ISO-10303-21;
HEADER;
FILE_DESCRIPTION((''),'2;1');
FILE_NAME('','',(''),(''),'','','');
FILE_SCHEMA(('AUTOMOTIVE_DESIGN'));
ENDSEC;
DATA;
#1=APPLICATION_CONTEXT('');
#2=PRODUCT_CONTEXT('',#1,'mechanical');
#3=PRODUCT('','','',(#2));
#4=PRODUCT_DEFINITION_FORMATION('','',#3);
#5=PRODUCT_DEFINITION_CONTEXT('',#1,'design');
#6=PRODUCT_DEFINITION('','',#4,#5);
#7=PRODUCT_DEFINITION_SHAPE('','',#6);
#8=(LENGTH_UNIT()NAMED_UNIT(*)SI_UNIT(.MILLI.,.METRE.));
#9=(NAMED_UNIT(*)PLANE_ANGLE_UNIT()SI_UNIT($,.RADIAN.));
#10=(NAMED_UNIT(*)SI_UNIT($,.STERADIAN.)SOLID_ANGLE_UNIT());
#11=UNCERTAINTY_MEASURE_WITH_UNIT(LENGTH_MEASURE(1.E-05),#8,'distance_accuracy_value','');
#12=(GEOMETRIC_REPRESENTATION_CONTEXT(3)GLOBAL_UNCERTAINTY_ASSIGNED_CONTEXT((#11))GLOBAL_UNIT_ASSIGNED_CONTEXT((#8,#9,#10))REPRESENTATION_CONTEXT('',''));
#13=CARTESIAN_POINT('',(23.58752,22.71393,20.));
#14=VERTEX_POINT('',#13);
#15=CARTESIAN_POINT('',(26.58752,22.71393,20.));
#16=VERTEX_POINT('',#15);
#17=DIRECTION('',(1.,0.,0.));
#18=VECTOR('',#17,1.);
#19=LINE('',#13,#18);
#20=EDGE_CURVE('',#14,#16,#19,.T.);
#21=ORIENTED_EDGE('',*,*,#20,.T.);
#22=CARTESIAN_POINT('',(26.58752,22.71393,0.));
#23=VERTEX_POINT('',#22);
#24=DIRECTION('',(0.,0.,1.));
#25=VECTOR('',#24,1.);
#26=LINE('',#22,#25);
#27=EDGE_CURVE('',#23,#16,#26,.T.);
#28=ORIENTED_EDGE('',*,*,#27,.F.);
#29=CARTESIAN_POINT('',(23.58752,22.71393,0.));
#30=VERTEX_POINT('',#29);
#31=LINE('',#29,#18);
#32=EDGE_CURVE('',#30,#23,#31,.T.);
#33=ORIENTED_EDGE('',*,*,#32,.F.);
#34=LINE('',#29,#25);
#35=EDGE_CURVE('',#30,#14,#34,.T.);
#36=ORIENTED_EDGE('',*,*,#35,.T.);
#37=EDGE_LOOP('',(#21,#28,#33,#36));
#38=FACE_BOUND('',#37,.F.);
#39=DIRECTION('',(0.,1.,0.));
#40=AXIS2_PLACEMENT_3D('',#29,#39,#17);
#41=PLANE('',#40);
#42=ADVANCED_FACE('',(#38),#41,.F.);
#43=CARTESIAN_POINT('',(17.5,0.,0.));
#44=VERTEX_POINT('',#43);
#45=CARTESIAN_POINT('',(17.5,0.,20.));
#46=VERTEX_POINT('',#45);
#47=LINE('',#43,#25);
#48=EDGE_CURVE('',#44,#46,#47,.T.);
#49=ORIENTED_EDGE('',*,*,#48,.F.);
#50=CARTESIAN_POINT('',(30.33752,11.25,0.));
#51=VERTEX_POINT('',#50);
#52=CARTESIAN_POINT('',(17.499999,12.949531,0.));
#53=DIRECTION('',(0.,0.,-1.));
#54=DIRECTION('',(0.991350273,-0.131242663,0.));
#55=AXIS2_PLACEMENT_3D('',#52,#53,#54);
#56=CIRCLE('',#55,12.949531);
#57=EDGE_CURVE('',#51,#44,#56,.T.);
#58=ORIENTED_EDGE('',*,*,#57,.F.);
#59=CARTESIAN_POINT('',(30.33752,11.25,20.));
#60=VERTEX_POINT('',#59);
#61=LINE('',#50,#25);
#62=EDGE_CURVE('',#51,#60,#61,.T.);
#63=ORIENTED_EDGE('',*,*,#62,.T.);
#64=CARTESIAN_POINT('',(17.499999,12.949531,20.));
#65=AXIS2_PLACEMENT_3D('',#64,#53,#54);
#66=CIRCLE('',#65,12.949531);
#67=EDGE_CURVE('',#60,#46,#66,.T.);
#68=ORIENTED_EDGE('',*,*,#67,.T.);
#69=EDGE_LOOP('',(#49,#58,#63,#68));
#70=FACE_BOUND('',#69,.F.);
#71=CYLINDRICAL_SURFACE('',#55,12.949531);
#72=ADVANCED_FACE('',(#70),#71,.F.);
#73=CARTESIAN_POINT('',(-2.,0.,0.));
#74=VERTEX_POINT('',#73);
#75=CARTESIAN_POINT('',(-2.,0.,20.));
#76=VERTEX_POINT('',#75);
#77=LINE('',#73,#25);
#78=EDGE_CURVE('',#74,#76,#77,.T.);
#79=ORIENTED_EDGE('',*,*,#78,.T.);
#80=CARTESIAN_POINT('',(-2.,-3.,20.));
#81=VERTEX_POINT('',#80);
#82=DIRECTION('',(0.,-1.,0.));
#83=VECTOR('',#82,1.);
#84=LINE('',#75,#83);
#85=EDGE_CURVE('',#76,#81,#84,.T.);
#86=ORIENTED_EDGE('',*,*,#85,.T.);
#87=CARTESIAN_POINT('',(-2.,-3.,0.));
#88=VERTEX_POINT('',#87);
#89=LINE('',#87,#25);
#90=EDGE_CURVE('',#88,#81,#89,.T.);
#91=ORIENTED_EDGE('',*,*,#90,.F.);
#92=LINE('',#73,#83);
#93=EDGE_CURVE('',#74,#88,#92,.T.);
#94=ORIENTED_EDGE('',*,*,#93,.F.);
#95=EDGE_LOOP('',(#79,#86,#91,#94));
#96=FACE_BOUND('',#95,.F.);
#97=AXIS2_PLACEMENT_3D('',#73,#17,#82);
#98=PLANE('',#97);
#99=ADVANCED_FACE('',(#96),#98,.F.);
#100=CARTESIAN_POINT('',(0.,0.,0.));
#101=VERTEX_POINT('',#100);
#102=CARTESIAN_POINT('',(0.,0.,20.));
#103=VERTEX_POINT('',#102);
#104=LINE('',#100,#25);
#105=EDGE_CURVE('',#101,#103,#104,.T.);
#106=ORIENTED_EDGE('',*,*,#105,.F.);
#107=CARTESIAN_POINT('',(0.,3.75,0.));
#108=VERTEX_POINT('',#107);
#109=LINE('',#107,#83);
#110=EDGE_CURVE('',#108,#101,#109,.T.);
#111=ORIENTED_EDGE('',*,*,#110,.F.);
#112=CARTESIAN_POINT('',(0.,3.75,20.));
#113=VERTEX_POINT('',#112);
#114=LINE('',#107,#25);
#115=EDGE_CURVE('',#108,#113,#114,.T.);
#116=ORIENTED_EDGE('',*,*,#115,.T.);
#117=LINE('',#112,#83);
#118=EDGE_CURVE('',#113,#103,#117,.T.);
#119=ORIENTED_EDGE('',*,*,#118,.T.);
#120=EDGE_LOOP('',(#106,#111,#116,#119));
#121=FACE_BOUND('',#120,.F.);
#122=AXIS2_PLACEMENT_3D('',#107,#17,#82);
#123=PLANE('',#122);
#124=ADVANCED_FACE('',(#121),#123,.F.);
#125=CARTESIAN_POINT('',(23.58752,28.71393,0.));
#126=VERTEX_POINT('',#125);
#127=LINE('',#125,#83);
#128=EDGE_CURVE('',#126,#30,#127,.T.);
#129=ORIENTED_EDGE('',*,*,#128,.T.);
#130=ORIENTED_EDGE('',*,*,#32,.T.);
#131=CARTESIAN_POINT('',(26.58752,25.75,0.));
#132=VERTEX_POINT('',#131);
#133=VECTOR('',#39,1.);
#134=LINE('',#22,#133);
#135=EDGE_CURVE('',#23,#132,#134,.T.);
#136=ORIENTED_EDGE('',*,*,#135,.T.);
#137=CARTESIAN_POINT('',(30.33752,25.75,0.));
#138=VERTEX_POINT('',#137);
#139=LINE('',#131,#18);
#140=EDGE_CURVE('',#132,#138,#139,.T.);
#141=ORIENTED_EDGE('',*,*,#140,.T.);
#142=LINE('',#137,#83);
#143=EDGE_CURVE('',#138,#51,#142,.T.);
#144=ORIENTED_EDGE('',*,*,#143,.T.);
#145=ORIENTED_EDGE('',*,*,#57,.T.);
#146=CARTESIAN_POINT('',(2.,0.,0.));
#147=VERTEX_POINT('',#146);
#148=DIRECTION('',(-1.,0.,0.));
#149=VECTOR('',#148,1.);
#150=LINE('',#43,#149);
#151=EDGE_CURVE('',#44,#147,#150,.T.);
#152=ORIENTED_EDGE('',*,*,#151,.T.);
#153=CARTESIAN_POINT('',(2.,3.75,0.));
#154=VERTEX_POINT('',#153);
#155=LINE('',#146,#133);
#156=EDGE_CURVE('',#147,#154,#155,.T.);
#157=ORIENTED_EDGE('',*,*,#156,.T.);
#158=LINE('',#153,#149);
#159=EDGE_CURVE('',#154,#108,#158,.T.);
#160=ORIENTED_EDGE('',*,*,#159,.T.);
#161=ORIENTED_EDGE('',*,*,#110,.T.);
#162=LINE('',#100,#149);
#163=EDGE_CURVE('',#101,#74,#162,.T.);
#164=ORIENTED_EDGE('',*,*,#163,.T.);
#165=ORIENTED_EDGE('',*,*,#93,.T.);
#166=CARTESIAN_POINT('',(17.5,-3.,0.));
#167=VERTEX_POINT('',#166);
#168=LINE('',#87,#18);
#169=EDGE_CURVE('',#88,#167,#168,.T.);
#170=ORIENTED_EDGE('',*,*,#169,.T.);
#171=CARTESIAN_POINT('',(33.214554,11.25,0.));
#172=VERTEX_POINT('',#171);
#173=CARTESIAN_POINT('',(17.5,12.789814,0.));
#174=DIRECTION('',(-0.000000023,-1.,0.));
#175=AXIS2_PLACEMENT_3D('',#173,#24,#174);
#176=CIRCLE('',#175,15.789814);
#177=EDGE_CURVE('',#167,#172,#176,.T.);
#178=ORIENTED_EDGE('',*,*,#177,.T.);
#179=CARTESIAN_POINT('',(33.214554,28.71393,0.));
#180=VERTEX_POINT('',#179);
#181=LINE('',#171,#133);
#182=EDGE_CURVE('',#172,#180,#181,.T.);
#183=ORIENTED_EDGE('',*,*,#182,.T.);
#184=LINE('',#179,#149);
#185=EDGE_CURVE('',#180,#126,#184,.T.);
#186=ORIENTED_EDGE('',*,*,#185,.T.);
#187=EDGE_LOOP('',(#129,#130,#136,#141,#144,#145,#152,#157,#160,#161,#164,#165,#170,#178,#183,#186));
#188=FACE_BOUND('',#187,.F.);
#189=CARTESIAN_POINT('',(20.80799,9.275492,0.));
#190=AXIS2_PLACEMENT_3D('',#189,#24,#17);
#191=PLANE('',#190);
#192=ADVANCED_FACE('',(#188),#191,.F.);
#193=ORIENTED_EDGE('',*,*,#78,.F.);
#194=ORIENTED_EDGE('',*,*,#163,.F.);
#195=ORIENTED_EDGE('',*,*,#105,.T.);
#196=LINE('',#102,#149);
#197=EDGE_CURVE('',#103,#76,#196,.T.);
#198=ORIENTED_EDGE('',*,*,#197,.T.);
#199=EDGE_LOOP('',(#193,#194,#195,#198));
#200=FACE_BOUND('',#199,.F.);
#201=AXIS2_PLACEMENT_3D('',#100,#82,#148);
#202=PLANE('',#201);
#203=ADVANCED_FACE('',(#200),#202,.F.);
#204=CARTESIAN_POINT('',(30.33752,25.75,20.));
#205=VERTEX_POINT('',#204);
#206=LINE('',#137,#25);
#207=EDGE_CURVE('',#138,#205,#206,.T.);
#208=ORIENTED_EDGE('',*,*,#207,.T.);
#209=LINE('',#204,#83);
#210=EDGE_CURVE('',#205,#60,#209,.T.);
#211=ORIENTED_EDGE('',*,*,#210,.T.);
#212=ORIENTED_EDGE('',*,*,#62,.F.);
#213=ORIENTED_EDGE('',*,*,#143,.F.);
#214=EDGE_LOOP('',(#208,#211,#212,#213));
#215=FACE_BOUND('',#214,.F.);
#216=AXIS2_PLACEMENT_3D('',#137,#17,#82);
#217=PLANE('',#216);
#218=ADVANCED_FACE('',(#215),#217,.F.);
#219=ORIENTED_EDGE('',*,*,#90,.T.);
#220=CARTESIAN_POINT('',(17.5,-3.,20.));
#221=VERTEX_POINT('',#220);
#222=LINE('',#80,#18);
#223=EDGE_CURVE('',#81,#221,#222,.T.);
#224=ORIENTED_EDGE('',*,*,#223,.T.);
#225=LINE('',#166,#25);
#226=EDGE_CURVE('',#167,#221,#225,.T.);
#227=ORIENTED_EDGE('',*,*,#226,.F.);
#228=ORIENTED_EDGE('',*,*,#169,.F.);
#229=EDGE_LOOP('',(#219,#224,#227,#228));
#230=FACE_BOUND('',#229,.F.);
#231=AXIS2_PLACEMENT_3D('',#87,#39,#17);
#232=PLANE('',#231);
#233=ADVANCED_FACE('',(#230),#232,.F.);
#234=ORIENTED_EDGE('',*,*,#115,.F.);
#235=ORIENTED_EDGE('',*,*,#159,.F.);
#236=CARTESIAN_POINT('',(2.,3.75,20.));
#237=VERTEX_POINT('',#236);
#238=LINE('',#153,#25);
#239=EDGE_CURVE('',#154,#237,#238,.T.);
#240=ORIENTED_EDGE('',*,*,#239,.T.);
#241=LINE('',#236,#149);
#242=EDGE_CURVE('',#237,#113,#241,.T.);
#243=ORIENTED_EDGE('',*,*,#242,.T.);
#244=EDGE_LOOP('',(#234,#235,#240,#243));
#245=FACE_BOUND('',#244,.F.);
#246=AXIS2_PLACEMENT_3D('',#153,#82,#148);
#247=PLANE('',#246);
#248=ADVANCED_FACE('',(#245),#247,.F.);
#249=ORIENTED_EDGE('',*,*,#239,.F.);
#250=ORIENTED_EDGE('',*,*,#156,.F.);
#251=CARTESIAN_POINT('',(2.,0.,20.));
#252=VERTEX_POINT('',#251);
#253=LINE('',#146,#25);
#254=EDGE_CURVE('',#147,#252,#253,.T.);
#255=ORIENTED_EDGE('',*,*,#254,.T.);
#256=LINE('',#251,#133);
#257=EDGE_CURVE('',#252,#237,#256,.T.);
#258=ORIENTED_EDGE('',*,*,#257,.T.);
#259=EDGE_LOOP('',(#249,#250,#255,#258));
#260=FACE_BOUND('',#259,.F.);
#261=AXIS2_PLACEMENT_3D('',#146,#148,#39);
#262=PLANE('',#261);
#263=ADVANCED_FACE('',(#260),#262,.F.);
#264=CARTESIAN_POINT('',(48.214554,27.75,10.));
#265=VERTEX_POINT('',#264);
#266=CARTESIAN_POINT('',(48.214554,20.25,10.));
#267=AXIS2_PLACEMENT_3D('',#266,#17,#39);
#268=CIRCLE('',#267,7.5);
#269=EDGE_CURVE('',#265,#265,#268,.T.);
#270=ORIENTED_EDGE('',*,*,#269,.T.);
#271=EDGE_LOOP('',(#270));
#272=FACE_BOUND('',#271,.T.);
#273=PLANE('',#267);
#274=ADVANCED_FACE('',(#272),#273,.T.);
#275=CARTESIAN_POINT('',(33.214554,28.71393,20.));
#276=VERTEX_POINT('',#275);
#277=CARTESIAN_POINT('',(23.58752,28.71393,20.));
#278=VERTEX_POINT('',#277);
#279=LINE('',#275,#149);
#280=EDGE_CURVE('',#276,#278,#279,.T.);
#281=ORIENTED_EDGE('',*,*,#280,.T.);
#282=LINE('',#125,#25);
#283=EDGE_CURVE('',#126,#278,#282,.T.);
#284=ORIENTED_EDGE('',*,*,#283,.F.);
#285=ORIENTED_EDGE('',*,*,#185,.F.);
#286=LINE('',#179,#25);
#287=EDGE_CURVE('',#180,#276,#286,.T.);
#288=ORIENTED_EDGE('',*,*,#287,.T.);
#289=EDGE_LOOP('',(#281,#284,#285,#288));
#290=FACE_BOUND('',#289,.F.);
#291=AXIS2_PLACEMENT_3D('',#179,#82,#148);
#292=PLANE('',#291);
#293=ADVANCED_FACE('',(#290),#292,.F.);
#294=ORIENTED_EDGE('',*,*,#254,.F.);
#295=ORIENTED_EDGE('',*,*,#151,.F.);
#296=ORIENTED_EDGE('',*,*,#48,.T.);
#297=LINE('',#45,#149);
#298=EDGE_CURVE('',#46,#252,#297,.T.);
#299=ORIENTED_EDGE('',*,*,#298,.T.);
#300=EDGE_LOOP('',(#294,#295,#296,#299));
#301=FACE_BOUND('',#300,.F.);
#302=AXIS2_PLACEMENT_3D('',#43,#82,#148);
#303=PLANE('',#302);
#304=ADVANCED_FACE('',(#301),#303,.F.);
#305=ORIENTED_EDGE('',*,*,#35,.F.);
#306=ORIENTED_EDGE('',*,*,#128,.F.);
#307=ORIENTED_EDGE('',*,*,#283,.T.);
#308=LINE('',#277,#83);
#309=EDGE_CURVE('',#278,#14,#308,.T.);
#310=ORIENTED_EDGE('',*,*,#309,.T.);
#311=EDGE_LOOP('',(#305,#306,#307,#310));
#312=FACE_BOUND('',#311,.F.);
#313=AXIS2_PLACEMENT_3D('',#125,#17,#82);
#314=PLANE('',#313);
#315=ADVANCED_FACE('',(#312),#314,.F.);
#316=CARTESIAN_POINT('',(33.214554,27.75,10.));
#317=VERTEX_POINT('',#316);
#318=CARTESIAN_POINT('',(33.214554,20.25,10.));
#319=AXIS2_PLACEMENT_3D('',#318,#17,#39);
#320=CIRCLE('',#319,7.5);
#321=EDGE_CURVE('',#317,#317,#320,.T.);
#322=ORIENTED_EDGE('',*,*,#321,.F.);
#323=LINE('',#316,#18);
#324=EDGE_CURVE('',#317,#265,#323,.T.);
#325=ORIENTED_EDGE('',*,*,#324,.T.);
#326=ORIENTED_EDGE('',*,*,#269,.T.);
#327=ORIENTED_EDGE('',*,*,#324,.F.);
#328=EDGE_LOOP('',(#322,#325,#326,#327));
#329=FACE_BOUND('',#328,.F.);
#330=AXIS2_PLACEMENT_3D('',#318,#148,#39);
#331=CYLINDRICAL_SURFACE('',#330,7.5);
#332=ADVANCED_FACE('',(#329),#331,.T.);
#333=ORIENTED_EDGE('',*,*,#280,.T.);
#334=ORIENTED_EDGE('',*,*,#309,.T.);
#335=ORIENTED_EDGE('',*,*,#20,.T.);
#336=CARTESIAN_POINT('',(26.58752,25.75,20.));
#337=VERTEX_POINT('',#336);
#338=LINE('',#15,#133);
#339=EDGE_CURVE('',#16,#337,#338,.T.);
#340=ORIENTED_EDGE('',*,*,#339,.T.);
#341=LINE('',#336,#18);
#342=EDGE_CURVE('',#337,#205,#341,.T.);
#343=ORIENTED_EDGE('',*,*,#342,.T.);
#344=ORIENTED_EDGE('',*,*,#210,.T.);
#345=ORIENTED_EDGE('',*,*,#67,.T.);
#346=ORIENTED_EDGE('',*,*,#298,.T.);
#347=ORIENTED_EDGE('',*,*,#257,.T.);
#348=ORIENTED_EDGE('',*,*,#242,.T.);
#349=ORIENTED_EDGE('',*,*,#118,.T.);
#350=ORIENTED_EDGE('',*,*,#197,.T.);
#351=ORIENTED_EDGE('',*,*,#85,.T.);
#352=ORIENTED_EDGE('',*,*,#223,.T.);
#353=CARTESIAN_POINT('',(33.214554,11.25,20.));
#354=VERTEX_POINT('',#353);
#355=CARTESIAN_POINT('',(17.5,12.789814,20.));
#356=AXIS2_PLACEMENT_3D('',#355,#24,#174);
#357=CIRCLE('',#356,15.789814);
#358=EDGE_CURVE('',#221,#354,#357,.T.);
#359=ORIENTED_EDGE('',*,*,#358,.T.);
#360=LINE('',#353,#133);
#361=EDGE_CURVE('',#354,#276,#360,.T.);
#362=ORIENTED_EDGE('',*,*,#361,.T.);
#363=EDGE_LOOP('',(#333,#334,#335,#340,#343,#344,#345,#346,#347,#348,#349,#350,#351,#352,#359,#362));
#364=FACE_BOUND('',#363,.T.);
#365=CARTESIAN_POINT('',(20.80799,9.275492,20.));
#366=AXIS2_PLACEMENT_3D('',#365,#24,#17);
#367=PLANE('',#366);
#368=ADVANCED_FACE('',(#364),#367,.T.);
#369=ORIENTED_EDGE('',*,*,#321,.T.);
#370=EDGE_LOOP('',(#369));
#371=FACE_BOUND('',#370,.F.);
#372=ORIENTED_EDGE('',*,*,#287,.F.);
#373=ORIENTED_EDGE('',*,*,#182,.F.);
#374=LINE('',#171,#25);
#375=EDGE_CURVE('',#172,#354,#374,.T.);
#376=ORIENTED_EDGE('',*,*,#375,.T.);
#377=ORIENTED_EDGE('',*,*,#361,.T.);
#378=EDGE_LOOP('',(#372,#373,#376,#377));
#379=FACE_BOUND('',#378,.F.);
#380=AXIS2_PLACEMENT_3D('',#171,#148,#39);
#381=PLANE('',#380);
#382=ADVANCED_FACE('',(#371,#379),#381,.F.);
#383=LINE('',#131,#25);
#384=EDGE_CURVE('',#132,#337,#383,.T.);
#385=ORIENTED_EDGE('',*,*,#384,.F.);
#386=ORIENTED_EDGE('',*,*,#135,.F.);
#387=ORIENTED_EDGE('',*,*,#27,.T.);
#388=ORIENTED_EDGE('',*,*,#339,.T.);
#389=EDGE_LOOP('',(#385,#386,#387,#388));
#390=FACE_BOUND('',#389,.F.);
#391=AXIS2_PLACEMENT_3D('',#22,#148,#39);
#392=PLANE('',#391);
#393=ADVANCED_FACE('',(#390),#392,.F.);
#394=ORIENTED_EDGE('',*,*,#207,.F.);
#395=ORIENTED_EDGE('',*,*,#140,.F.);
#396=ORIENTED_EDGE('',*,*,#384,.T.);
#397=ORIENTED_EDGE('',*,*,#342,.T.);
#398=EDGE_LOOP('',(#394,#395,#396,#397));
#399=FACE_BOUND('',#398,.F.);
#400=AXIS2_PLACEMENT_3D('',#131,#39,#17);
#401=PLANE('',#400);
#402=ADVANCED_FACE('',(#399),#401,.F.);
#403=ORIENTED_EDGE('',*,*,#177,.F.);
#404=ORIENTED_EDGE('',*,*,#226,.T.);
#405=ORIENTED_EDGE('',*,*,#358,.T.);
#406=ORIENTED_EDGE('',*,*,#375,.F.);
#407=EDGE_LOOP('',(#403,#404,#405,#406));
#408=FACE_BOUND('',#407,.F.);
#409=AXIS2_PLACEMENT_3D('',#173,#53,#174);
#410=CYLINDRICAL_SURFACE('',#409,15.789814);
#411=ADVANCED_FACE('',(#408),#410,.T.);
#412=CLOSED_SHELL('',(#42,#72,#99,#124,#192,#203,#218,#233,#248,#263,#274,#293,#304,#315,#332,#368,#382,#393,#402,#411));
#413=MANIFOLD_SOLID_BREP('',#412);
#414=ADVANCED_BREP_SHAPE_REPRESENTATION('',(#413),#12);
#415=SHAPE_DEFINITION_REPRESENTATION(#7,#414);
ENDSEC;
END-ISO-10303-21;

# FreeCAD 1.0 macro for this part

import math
import FreeCAD as App
import Part
import Sketcher
from FreeCAD import Vector
Q = App.Units.Quantity

doc = App.newDocument("Part")
body = doc.addObject("PartDesign::Body", "Body")

sketch1 = doc.addObject("Sketcher::SketchObject", "Sketch")
body.addObject(sketch1)
sketch1.AttachmentSupport = (doc.XY_Plane, [""])
sketch1.MapMode = "FlatFace"
sketch1.addGeometry(Part.LineSegment(Vector(2, 3.8, 0), Vector(0, 3.8, 0)), False)
sketch1.addGeometry(Part.LineSegment(Vector(0, 3.8, 0), Vector(0, 0, 0)), False)
sketch1.addGeometry(Part.LineSegment(Vector(0, 0, 0), Vector(-2, 0, 0)), False)
sketch1.addGeometry(Part.LineSegment(Vector(-2, 0, 0), Vector(-2, -3, 0)), False)
sketch1.addGeometry(Part.LineSegment(Vector(-2, -3, 0), Vector(17.5, -3, 0)), False)
sketch1.addGeometry(Part.ArcOfCircle(Part.Circle(Vector(17.5, 12.8, 0), Vector(0, 0, 1), 15.8), math.radians(-90), math.radians(-6)), False)
sketch1.addGeometry(Part.LineSegment(Vector(33.2, 11.2, 0), Vector(33.2, 28.7, 0)), False)
sketch1.addGeometry(Part.LineSegment(Vector(33.2, 28.7, 0), Vector(23.6, 28.7, 0)), False)
sketch1.addGeometry(Part.LineSegment(Vector(23.6, 28.7, 0), Vector(23.6, 22.7, 0)), False)
sketch1.addGeometry(Part.LineSegment(Vector(23.6, 22.7, 0), Vector(26.6, 22.7, 0)), False)
sketch1.addGeometry(Part.LineSegment(Vector(26.6, 22.7, 0), Vector(26.6, 25.8, 0)), False)
sketch1.addGeometry(Part.LineSegment(Vector(26.6, 25.8, 0), Vector(30.3, 25.8, 0)), False)
sketch1.addGeometry(Part.LineSegment(Vector(30.3, 25.8, 0), Vector(30.3, 11.2, 0)), False)
sketch1.addGeometry(Part.ArcOfCircle(Part.Circle(Vector(17.5, 12.9, 0), Vector(0, 0, 1), 12.9), math.radians(-90), math.radians(-8)), False)
sketch1.addGeometry(Part.LineSegment(Vector(17.5, 0, 0), Vector(2, 0, 0)), False)
sketch1.addGeometry(Part.LineSegment(Vector(2, 0, 0), Vector(2, 3.8, 0)), False)
sketch1.addConstraint(Sketcher.Constraint("Coincident", 0, 2, 1, 1))
sketch1.addConstraint(Sketcher.Constraint("Coincident", 1, 2, 2, 1))
sketch1.addConstraint(Sketcher.Constraint("Coincident", 2, 2, 3, 1))
sketch1.addConstraint(Sketcher.Constraint("Coincident", 3, 2, 4, 1))
sketch1.addConstraint(Sketcher.Constraint("Tangent", 4, 2, 5, 1))
sketch1.addConstraint(Sketcher.Constraint("Coincident", 5, 2, 6, 1))
sketch1.addConstraint(Sketcher.Constraint("Coincident", 6, 2, 7, 1))
sketch1.addConstraint(Sketcher.Constraint("Coincident", 7, 2, 8, 1))
sketch1.addConstraint(Sketcher.Constraint("Coincident", 8, 2, 9, 1))
sketch1.addConstraint(Sketcher.Constraint("Coincident", 9, 2, 10, 1))
sketch1.addConstraint(Sketcher.Constraint("Coincident", 10, 2, 11, 1))
sketch1.addConstraint(Sketcher.Constraint("Coincident", 11, 2, 12, 1))
sketch1.addConstraint(Sketcher.Constraint("Coincident", 12, 2, 13, 2))
sketch1.addConstraint(Sketcher.Constraint("Tangent", 13, 1, 14, 1))
sketch1.addConstraint(Sketcher.Constraint("Coincident", 14, 2, 15, 1))
sketch1.addConstraint(Sketcher.Constraint("Coincident", 15, 2, 0, 1))
sketch1.addConstraint(Sketcher.Constraint("Horizontal", 0))
sketch1.addConstraint(Sketcher.Constraint("Vertical", 1))
sketch1.addConstraint(Sketcher.Constraint("Horizontal", 2))
sketch1.addConstraint(Sketcher.Constraint("Vertical", 3))
sketch1.addConstraint(Sketcher.Constraint("Horizontal", 4))
sketch1.addConstraint(Sketcher.Constraint("Vertical", 6))
sketch1.addConstraint(Sketcher.Constraint("Horizontal", 7))
sketch1.addConstraint(Sketcher.Constraint("Vertical", 8))
sketch1.addConstraint(Sketcher.Constraint("Horizontal", 9))
sketch1.addConstraint(Sketcher.Constraint("Vertical", 10))
sketch1.addConstraint(Sketcher.Constraint("Horizontal", 11))
sketch1.addConstraint(Sketcher.Constraint("Vertical", 12))
sketch1.addConstraint(Sketcher.Constraint("Horizontal", 14))
sketch1.addConstraint(Sketcher.Constraint("Vertical", 15))
sketch1.addConstraint(Sketcher.Constraint("Coincident", 1, 2, -1, 1))
sketch1.addConstraint(Sketcher.Constraint("Symmetric", 2, 2, 14, 2, -1, 1))
sketch1.addConstraint(Sketcher.Constraint("Horizontal", 5, 2, 12, 2))
sketch1.addConstraint(Sketcher.Constraint("Vertical", 5, 3, 13, 3))
sketch1.addConstraint(Sketcher.Constraint("Equal", 11, 1))
sketch1.addConstraint(Sketcher.Constraint("Equal", 9, 3))
sketch1.addConstraint(Sketcher.Constraint("DistanceX", 0, 2, 0, 1, Q("2 mm")))
sketch1.addConstraint(Sketcher.Constraint("DistanceX", 9, 1, 9, 2, Q("3 mm")))
sketch1.addConstraint(Sketcher.Constraint("DistanceY", 8, 2, 8, 1, Q("6 mm")))
sketch1.addConstraint(Sketcher.Constraint("DistanceX", 4, 1, 4, 2, Q("19.5 mm")))
sketch1.addConstraint(Sketcher.Constraint("DistanceY", 12, 2, 12, 1, Q("14.5 mm")))
sketch1.addConstraint(Sketcher.Constraint("DistanceX", 11, 1, 11, 2, Q("3.75 mm")))
sketch1.addConstraint(Sketcher.Constraint("DistanceY", 0, 2, 5, 2, Q("7.5 mm")))
sketch1.addConstraint(Sketcher.Constraint("Radius", 13, Q("12.949531 mm")))
sketch1.addConstraint(Sketcher.Constraint("Radius", 5, Q("15.789814 mm")))
sketch1.addConstraint(Sketcher.Constraint("DistanceY", 6, 1, 6, 2, Q("17.46393 mm")))
pad1 = doc.addObject("PartDesign::Pad", "Pad")
body.addObject(pad1)
pad1.Profile = sketch1
pad1.Length = 20

sketch2 = doc.addObject("Sketcher::SketchObject", "Sketch001")
body.addObject(sketch2)
sketch2.AttachmentSupport = (doc.YZ_Plane, [""])
sketch2.MapMode = "FlatFace"
sketch2.AttachmentOffset = App.Placement(Vector(0, 0, 33.214554), App.Rotation())
sketch2.addGeometry(Part.Circle(Vector(20, 10, 0), Vector(0, 0, 1), 8), False)
sketch2.addConstraint(Sketcher.Constraint("Diameter", 0, Q("15 mm")))
sketch2.addConstraint(Sketcher.Constraint("DistanceY", -1, 1, 0, 3, Q("10 mm")))
sketch2.addConstraint(Sketcher.Constraint("DistanceX", -1, 1, 0, 3, Q("20.25 mm")))
pad2 = doc.addObject("PartDesign::Pad", "Pad001")
body.addObject(pad2)
pad2.Profile = sketch2
pad2.Length = 15

doc.recompute()
